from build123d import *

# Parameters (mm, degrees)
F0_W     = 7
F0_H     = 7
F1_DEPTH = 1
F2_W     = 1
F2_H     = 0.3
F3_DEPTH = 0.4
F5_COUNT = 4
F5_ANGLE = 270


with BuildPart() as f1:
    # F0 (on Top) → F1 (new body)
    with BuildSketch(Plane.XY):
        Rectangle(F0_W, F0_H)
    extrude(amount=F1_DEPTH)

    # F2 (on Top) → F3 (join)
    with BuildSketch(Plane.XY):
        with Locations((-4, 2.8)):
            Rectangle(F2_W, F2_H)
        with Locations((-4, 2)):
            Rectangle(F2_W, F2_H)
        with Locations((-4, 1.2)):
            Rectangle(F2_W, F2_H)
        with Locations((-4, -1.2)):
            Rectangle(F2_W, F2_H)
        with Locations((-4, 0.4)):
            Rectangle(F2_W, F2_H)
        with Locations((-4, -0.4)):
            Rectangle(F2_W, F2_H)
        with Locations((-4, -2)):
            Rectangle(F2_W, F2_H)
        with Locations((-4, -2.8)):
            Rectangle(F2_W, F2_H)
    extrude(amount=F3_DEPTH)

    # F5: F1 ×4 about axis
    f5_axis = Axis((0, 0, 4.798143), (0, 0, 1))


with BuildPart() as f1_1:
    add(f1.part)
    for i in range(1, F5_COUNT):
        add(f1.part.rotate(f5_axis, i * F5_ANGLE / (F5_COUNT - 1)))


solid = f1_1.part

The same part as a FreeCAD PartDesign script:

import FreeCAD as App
import Part
import Sketcher

V = App.Vector

doc = App.newDocument("Part")
body = doc.addObject("PartDesign::Body", "Body")

# Sketch on XY plane
sketch1 = body.newObject("Sketcher::SketchObject", "Sketch")
sketch1.AttachmentSupport = (doc.getObject("XY_Plane"), [""])
sketch1.MapMode = "FlatFace"
sketch1.addGeometry([
    Part.LineSegment(V(-4, 4, 0), V(-4, -4, 0)),
    Part.LineSegment(V(-4, -4, 0), V(4, -4, 0)),
    Part.LineSegment(V(4, -4, 0), V(4, 4, 0)),
    Part.LineSegment(V(4, 4, 0), V(-4, 4, 0)),
], False)
sketch1.addConstraint([
    Sketcher.Constraint("Coincident", 0, 2, 1, 1),
    Sketcher.Constraint("Coincident", 1, 2, 2, 1),
    Sketcher.Constraint("Coincident", 2, 2, 3, 1),
    Sketcher.Constraint("Coincident", 3, 2, 0, 1),
    Sketcher.Constraint("Vertical", 0),
    Sketcher.Constraint("Horizontal", 1),
    Sketcher.Constraint("Vertical", 2),
    Sketcher.Constraint("Horizontal", 3),
    Sketcher.Constraint("Symmetric", 0, 2, 2, 2, -1, 1),
    Sketcher.Constraint("Equal", 3, 0),
    Sketcher.Constraint("DistanceX", 1, 1, 1, 2, 7.0),
])
pad1 = body.newObject("PartDesign::Pad", "Pad")
pad1.Profile = sketch1
pad1.Length = 1

# Sketch on XY plane
sketch2 = body.newObject("Sketcher::SketchObject", "Sketch001")
sketch2.AttachmentSupport = (doc.getObject("XY_Plane"), [""])
sketch2.MapMode = "FlatFace"
sketch2.addGeometry([
    Part.LineSegment(V(-4.5, 2.95, 0), V(-4.5, 2.65, 0)),  # 0
    Part.LineSegment(V(-4.5, 2.65, 0), V(-3.5, 2.65, 0)),  # 1
    Part.LineSegment(V(-3.5, 2.65, 0), V(-3.5, 2.95, 0)),  # 2
    Part.LineSegment(V(-3.5, 2.95, 0), V(-4.5, 2.95, 0)),  # 3
    Part.LineSegment(V(-4.5, 2.15, 0), V(-4.5, 1.85, 0)),  # 4
    Part.LineSegment(V(-4.5, 1.85, 0), V(-3.5, 1.85, 0)),  # 5
    Part.LineSegment(V(-3.5, 1.85, 0), V(-3.5, 2.15, 0)),  # 6
    Part.LineSegment(V(-3.5, 2.15, 0), V(-4.5, 2.15, 0)),  # 7
    Part.LineSegment(V(-4.5, 1.35, 0), V(-4.5, 1.05, 0)),  # 8
    Part.LineSegment(V(-4.5, 1.05, 0), V(-3.5, 1.05, 0)),  # 9
    Part.LineSegment(V(-3.5, 1.05, 0), V(-3.5, 1.35, 0)),  # 10
    Part.LineSegment(V(-3.5, 1.35, 0), V(-4.5, 1.35, 0)),  # 11
    Part.LineSegment(V(-4.5, -1.05, 0), V(-4.5, -1.35, 0)),  # 12
    Part.LineSegment(V(-4.5, -1.35, 0), V(-3.5, -1.35, 0)),  # 13
    Part.LineSegment(V(-3.5, -1.35, 0), V(-3.5, -1.05, 0)),  # 14
    Part.LineSegment(V(-3.5, -1.05, 0), V(-4.5, -1.05, 0)),  # 15
    Part.LineSegment(V(-4.5, 0.55, 0), V(-4.5, 0.25, 0)),  # 16
    Part.LineSegment(V(-4.5, 0.25, 0), V(-3.5, 0.25, 0)),  # 17
    Part.LineSegment(V(-3.5, 0.25, 0), V(-3.5, 0.55, 0)),  # 18
    Part.LineSegment(V(-3.5, 0.55, 0), V(-4.5, 0.55, 0)),  # 19
    Part.LineSegment(V(-4.5, -0.25, 0), V(-4.5, -0.55, 0)),  # 20
    Part.LineSegment(V(-4.5, -0.55, 0), V(-3.5, -0.55, 0)),  # 21
    Part.LineSegment(V(-3.5, -0.55, 0), V(-3.5, -0.25, 0)),  # 22
    Part.LineSegment(V(-3.5, -0.25, 0), V(-4.5, -0.25, 0)),  # 23
    Part.LineSegment(V(-4.5, -1.85, 0), V(-4.5, -2.15, 0)),  # 24
    Part.LineSegment(V(-4.5, -2.15, 0), V(-3.5, -2.15, 0)),  # 25
    Part.LineSegment(V(-3.5, -2.15, 0), V(-3.5, -1.85, 0)),  # 26
    Part.LineSegment(V(-3.5, -1.85, 0), V(-4.5, -1.85, 0)),  # 27
    Part.LineSegment(V(-4.5, -2.65, 0), V(-4.5, -2.95, 0)),  # 28
    Part.LineSegment(V(-4.5, -2.95, 0), V(-3.5, -2.95, 0)),  # 29
    Part.LineSegment(V(-3.5, -2.95, 0), V(-3.5, -2.65, 0)),  # 30
    Part.LineSegment(V(-3.5, -2.65, 0), V(-4.5, -2.65, 0)),  # 31
], False)
sketch2.addConstraint([
    Sketcher.Constraint("Coincident", 0, 2, 1, 1),
    Sketcher.Constraint("Coincident", 1, 2, 2, 1),
    Sketcher.Constraint("Coincident", 2, 2, 3, 1),
    Sketcher.Constraint("Coincident", 3, 2, 0, 1),
    Sketcher.Constraint("Coincident", 4, 2, 5, 1),
    Sketcher.Constraint("Coincident", 5, 2, 6, 1),
    Sketcher.Constraint("Coincident", 6, 2, 7, 1),
    Sketcher.Constraint("Coincident", 7, 2, 4, 1),
    Sketcher.Constraint("Coincident", 8, 2, 9, 1),
    Sketcher.Constraint("Coincident", 9, 2, 10, 1),
    Sketcher.Constraint("Coincident", 10, 2, 11, 1),
    Sketcher.Constraint("Coincident", 11, 2, 8, 1),
    Sketcher.Constraint("Coincident", 12, 2, 13, 1),
    Sketcher.Constraint("Coincident", 13, 2, 14, 1),
    Sketcher.Constraint("Coincident", 14, 2, 15, 1),
    Sketcher.Constraint("Coincident", 15, 2, 12, 1),
    Sketcher.Constraint("Coincident", 16, 2, 17, 1),
    Sketcher.Constraint("Coincident", 17, 2, 18, 1),
    Sketcher.Constraint("Coincident", 18, 2, 19, 1),
    Sketcher.Constraint("Coincident", 19, 2, 16, 1),
    Sketcher.Constraint("Coincident", 20, 2, 21, 1),
    Sketcher.Constraint("Coincident", 21, 2, 22, 1),
    Sketcher.Constraint("Coincident", 22, 2, 23, 1),
    Sketcher.Constraint("Coincident", 23, 2, 20, 1),
    Sketcher.Constraint("Coincident", 24, 2, 25, 1),
    Sketcher.Constraint("Coincident", 25, 2, 26, 1),
    Sketcher.Constraint("Coincident", 26, 2, 27, 1),
    Sketcher.Constraint("Coincident", 27, 2, 24, 1),
    Sketcher.Constraint("Coincident", 28, 2, 29, 1),
    Sketcher.Constraint("Coincident", 29, 2, 30, 1),
    Sketcher.Constraint("Coincident", 30, 2, 31, 1),
    Sketcher.Constraint("Coincident", 31, 2, 28, 1),
    Sketcher.Constraint("Vertical", 0),
    Sketcher.Constraint("Horizontal", 1),
    Sketcher.Constraint("Vertical", 2),
    Sketcher.Constraint("Horizontal", 3),
    Sketcher.Constraint("Vertical", 4),
    Sketcher.Constraint("Horizontal", 5),
    Sketcher.Constraint("Vertical", 6),
    Sketcher.Constraint("Horizontal", 7),
    Sketcher.Constraint("Vertical", 8),
    Sketcher.Constraint("Horizontal", 9),
    Sketcher.Constraint("Vertical", 10),
    Sketcher.Constraint("Horizontal", 11),
    Sketcher.Constraint("Vertical", 12),
    Sketcher.Constraint("Horizontal", 13),
    Sketcher.Constraint("Vertical", 14),
    Sketcher.Constraint("Horizontal", 15),
    Sketcher.Constraint("Vertical", 16),
    Sketcher.Constraint("Horizontal", 17),
    Sketcher.Constraint("Vertical", 18),
    Sketcher.Constraint("Horizontal", 19),
    Sketcher.Constraint("Vertical", 20),
    Sketcher.Constraint("Horizontal", 21),
    Sketcher.Constraint("Vertical", 22),
    Sketcher.Constraint("Horizontal", 23),
    Sketcher.Constraint("Vertical", 24),
    Sketcher.Constraint("Horizontal", 25),
    Sketcher.Constraint("Vertical", 26),
    Sketcher.Constraint("Horizontal", 27),
    Sketcher.Constraint("Vertical", 28),
    Sketcher.Constraint("Horizontal", 29),
    Sketcher.Constraint("Vertical", 30),
    Sketcher.Constraint("Horizontal", 31),
    Sketcher.Constraint("Symmetric", 11, 2, 12, 2, -1),
    Sketcher.Constraint("Symmetric", 9, 2, 14, 2, -1),
    Sketcher.Constraint("Symmetric", 19, 2, 20, 2, -1),
    Sketcher.Constraint("Symmetric", 17, 2, 22, 2, -1),
    Sketcher.Constraint("Symmetric", 7, 2, 24, 2, -1),
    Sketcher.Constraint("Symmetric", 5, 2, 26, 2, -1),
    Sketcher.Constraint("Symmetric", 3, 2, 28, 2, -1),
    Sketcher.Constraint("Symmetric", 1, 2, 30, 2, -1),
    Sketcher.Constraint("Vertical", 3, 2, 4, 2),
    Sketcher.Constraint("Vertical", 2, 2, 5, 2),
    Sketcher.Constraint("Vertical", 7, 2, 8, 2),
    Sketcher.Constraint("Vertical", 6, 2, 9, 2),
    Sketcher.Constraint("Vertical", 15, 2, 16, 2),
    Sketcher.Constraint("Vertical", 14, 2, 17, 2),
    Sketcher.Constraint("Equal", 2, 4),
    Sketcher.Constraint("Equal", 6, 8),
    Sketcher.Constraint("Equal", 14, 16),
    Sketcher.Constraint("DistanceX", 1, 1, 1, 2, 1.0),
    Sketcher.Constraint("DistanceY", 0, 2, 0, 1, 0.3),
    Sketcher.Constraint("DistanceX", 0, 2, -1, 1, 4.5),
    Sketcher.Constraint("DistanceY", 4, 2, 0, 2, 0.8),
    Sketcher.Constraint("DistanceY", 8, 2, 4, 2, 0.8),
    Sketcher.Constraint("DistanceY", 12, 2, 8, 2, 2.4),
    Sketcher.Constraint("DistanceY", 16, 2, 8, 2, 0.8),
])
pad2 = body.newObject("PartDesign::Pad", "Pad001")
pad2.Profile = sketch2
pad2.Length = 0.4
body2 = doc.addObject("PartDesign::Body", "Body001")
doc.recompute()

body2.BaseFeature = body
doc.recompute()

body3 = doc.addObject("PartDesign::Body", "Body002")
body3.BaseFeature = body
body3.Placement = App.Placement(V(0, 0, 0), App.Rotation(V(0, 0, 1), 90))
boolean = body2.newObject("PartDesign::Boolean", "Boolean")
boolean.Type = "Fuse"
boolean.addObjects([body3])
doc.recompute()

body4 = doc.addObject("PartDesign::Body", "Body003")
body4.BaseFeature = body
body4.Placement = App.Placement(V(0, 0, 0), App.Rotation(V(0, 0, 1), 180))
boolean2 = body2.newObject("PartDesign::Boolean", "Boolean001")
boolean2.Type = "Fuse"
boolean2.addObjects([body4])
doc.recompute()

body.Placement = App.Placement(V(0, 0, 0), App.Rotation(V(0, 0, 1), 270))
boolean3 = body2.newObject("PartDesign::Boolean", "Boolean002")
boolean3.Type = "Fuse"
boolean3.addObjects([body])

doc.recompute()
